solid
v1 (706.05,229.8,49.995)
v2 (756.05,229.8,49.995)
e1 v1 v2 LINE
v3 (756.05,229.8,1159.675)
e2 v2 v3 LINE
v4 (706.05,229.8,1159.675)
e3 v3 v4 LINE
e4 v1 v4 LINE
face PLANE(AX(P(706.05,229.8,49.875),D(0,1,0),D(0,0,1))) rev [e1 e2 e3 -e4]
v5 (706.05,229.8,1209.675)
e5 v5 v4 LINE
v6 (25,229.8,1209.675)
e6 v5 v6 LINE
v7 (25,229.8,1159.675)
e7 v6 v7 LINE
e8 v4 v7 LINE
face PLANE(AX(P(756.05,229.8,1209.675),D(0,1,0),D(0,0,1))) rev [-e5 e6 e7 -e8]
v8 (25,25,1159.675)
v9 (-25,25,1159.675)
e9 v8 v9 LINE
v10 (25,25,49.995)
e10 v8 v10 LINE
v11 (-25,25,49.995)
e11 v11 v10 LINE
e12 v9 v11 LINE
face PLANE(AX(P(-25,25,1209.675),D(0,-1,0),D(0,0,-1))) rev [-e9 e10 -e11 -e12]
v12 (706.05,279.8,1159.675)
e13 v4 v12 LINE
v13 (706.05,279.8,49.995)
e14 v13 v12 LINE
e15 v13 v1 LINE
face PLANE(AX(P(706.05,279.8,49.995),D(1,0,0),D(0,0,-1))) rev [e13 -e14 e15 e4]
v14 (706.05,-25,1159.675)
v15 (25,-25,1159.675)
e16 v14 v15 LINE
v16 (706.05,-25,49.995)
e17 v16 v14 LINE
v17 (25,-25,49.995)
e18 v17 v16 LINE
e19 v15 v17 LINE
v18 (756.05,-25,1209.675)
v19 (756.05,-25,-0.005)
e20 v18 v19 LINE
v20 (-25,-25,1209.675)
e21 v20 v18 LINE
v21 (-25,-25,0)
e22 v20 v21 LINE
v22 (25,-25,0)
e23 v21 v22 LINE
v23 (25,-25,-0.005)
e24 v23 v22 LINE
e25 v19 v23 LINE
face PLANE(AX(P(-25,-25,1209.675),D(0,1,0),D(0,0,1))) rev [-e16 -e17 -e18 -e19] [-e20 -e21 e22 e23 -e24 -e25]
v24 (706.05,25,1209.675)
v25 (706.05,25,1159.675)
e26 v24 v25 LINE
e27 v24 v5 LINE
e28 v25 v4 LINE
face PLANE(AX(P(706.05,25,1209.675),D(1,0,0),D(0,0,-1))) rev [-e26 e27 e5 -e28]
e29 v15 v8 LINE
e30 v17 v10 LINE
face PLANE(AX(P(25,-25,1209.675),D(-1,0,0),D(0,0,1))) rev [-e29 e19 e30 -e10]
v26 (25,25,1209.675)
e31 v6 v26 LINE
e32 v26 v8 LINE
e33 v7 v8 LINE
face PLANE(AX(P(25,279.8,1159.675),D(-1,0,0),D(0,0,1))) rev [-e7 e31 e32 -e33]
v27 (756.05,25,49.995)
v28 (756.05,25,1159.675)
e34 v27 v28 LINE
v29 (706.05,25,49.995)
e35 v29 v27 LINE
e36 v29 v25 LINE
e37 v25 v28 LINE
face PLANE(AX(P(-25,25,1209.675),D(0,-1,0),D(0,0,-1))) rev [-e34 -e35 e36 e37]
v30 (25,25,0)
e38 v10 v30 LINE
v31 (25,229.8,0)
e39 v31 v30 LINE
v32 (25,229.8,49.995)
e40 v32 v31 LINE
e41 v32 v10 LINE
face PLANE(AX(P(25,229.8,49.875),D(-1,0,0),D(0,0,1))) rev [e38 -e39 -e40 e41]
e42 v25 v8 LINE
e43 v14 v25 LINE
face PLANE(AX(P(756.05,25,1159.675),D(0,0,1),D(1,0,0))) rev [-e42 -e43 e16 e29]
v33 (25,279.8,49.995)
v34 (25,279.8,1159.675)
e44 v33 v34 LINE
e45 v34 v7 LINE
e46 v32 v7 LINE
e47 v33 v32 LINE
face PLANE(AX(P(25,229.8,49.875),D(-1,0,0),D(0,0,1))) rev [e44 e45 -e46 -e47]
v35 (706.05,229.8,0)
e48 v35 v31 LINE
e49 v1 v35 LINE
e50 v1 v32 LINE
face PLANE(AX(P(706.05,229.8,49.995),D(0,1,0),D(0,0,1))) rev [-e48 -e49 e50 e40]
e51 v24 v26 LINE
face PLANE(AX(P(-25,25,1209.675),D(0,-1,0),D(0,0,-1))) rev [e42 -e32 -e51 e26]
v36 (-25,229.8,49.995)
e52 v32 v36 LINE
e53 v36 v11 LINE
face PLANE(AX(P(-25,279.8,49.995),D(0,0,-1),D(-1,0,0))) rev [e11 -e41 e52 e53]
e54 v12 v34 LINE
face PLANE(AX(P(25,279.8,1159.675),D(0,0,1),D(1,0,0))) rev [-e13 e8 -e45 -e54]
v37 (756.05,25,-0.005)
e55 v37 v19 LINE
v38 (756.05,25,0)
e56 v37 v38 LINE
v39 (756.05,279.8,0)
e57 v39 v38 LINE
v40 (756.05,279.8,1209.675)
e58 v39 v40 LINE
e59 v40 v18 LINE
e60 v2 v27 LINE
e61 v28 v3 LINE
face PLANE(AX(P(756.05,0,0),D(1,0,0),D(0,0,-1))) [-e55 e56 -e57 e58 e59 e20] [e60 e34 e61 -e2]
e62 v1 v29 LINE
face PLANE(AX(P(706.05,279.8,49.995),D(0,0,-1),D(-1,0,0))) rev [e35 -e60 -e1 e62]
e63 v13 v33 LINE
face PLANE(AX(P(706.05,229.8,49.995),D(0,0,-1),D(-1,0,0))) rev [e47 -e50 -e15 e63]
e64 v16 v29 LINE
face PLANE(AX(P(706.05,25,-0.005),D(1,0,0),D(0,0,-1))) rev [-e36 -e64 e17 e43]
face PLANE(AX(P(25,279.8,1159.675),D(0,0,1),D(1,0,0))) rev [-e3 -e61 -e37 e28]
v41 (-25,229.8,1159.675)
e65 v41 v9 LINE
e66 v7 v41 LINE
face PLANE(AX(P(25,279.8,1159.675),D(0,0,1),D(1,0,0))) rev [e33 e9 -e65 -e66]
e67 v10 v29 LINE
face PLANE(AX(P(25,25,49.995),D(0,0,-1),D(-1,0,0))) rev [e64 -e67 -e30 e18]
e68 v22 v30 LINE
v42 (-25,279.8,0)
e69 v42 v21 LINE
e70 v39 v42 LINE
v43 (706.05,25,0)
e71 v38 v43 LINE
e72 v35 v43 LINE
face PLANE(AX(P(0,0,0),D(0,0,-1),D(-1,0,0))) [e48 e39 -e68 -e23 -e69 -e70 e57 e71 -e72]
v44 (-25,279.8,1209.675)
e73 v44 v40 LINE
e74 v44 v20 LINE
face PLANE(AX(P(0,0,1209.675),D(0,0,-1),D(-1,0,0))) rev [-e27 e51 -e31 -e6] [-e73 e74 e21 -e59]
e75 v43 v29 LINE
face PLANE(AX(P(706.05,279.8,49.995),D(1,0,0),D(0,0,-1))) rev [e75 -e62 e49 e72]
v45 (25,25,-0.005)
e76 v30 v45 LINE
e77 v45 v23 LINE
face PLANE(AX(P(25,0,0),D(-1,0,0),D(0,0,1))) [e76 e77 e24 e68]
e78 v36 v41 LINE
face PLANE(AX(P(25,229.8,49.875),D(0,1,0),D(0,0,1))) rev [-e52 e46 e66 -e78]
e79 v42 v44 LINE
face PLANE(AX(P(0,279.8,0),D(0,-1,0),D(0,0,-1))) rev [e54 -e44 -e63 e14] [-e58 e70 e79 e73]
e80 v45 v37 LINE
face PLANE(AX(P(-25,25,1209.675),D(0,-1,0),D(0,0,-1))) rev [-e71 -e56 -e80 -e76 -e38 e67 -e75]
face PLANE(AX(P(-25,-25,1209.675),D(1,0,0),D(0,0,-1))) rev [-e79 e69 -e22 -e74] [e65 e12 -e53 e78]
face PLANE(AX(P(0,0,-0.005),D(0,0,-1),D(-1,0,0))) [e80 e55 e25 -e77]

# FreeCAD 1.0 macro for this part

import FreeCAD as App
import Part
import Sketcher
from FreeCAD import Vector
Q = App.Units.Quantity

doc = App.newDocument("Part")
body = doc.addObject("PartDesign::Body", "Body")

# Sketch on XY plane
sketch1 = doc.addObject("Sketcher::SketchObject", "Sketch")
body.addObject(sketch1)
sketch1.AttachmentSupport = (doc.XY_Plane, [""])
sketch1.MapMode = "FlatFace"
sketch1.addGeometry(Part.LineSegment(Vector(-25, 25, 0), Vector(-25, -25, 0)), False)
sketch1.addGeometry(Part.LineSegment(Vector(-25, -25, 0), Vector(25, -25, 0)), False)
sketch1.addGeometry(Part.LineSegment(Vector(25, -25, 0), Vector(25, 25, 0)), False)
sketch1.addGeometry(Part.LineSegment(Vector(25, 25, 0), Vector(-25, 25, 0)), False)
sketch1.addConstraint(Sketcher.Constraint("Coincident", 0, 2, 1, 1))
sketch1.addConstraint(Sketcher.Constraint("Coincident", 1, 2, 2, 1))
sketch1.addConstraint(Sketcher.Constraint("Coincident", 2, 2, 3, 1))
sketch1.addConstraint(Sketcher.Constraint("Coincident", 3, 2, 0, 1))
sketch1.addConstraint(Sketcher.Constraint("Vertical", 0))
sketch1.addConstraint(Sketcher.Constraint("Horizontal", 1))
sketch1.addConstraint(Sketcher.Constraint("Vertical", 2))
sketch1.addConstraint(Sketcher.Constraint("Horizontal", 3))
sketch1.addConstraint(Sketcher.Constraint("Symmetric", 0, 2, 2, 2, -1, 1))
sketch1.addConstraint(Sketcher.Constraint("Equal", 3, 0))
sketch1.addConstraint(Sketcher.Constraint("DistanceX", 1, 1, 1, 2, Q("50 mm")))
pad1 = doc.addObject("PartDesign::Pad", "Pad")
body.addObject(pad1)
pad1.Profile = sketch1
pad1.Length = 1209.675

# Sketch on YZ plane
sketch2 = doc.addObject("Sketcher::SketchObject", "Sketch001")
body.addObject(sketch2)
sketch2.AttachmentSupport = (doc.YZ_Plane, [""])
sketch2.MapMode = "FlatFace"
sketch2.AttachmentOffset = App.Placement(Vector(0, 0, 25), App.Rotation())
sketch2.addGeometry(Part.LineSegment(Vector(25, 1209.675, 0), Vector(-25, 1209.675, 0)), False)
sketch2.addGeometry(Part.LineSegment(Vector(-25, 1209.675, 0), Vector(-25, 1159.675, 0)), False)
sketch2.addGeometry(Part.LineSegment(Vector(-25, 1159.675, 0), Vector(25, 1159.675, 0)), False)
sketch2.addGeometry(Part.LineSegment(Vector(25, 1159.675, 0), Vector(25, 1209.675, 0)), False)
sketch2.addConstraint(Sketcher.Constraint("Coincident", 0, 2, 1, 1))
sketch2.addConstraint(Sketcher.Constraint("Coincident", 1, 2, 2, 1))
sketch2.addConstraint(Sketcher.Constraint("Coincident", 2, 2, 3, 1))
sketch2.addConstraint(Sketcher.Constraint("Coincident", 3, 2, 0, 1))
sketch2.addConstraint(Sketcher.Constraint("Horizontal", 0))
sketch2.addConstraint(Sketcher.Constraint("Vertical", 1))
sketch2.addConstraint(Sketcher.Constraint("Horizontal", 2))
sketch2.addConstraint(Sketcher.Constraint("Vertical", 3))
sketch2.addConstraint(Sketcher.Constraint("Equal", 2, 1))
sketch2.addConstraint(Sketcher.Constraint("DistanceX", 0, 2, 0, 1, Q("50 mm")))
sketch2.addConstraint(Sketcher.Constraint("DistanceX", 0, 2, -1, 1, Q("25 mm")))
sketch2.addConstraint(Sketcher.Constraint("DistanceY", -1, 1, 0, 2, Q("1209.675 mm")))
pad2 = doc.addObject("PartDesign::Pad", "Pad001")
body.addObject(pad2)
pad2.Profile = sketch2
pad2.Length = 731.05

# Sketch on XY plane
sketch3 = doc.addObject("Sketcher::SketchObject", "Sketch002")
body.addObject(sketch3)
sketch3.AttachmentSupport = (doc.XY_Plane, [""])
sketch3.MapMode = "FlatFace"
sketch3.AttachmentOffset = App.Placement(Vector(0, 0, 1159.675), App.Rotation())
sketch3.addGeometry(Part.LineSegment(Vector(756.05, 25, 0), Vector(756.05, -25, 0)), False)
sketch3.addGeometry(Part.LineSegment(Vector(756.05, -25, 0), Vector(706.05, -25, 0)), False)
sketch3.addGeometry(Part.LineSegment(Vector(706.05, -25, 0), Vector(706.05, 25, 0)), False)
sketch3.addGeometry(Part.LineSegment(Vector(706.05, 25, 0), Vector(756.05, 25, 0)), False)
sketch3.addConstraint(Sketcher.Constraint("Coincident", 0, 2, 1, 1))
sketch3.addConstraint(Sketcher.Constraint("Coincident", 1, 2, 2, 1))
sketch3.addConstraint(Sketcher.Constraint("Coincident", 2, 2, 3, 1))
sketch3.addConstraint(Sketcher.Constraint("Coincident", 3, 2, 0, 1))
sketch3.addConstraint(Sketcher.Constraint("Vertical", 0))
sketch3.addConstraint(Sketcher.Constraint("Horizontal", 1))
sketch3.addConstraint(Sketcher.Constraint("Vertical", 2))
sketch3.addConstraint(Sketcher.Constraint("Horizontal", 3))
sketch3.addConstraint(Sketcher.Constraint("Equal", 3, 0))
sketch3.addConstraint(Sketcher.Constraint("DistanceX", 1, 2, 1, 1, Q("50 mm")))
sketch3.addConstraint(Sketcher.Constraint("DistanceY", 0, 2, -1, 1, Q("25 mm")))
sketch3.addConstraint(Sketcher.Constraint("DistanceX", -1, 1, 0, 2, Q("756.05 mm")))
pad3 = doc.addObject("PartDesign::Pad", "Pad002")
body.addObject(pad3)
pad3.Profile = sketch3
pad3.Length = 1159.68
pad3.Reversed = True

# Sketch on YZ plane
sketch4 = doc.addObject("Sketcher::SketchObject", "Sketch003")
body.addObject(sketch4)
sketch4.AttachmentSupport = (doc.YZ_Plane, [""])
sketch4.MapMode = "FlatFace"
sketch4.AttachmentOffset = App.Placement(Vector(0, 0, 706.05), App.Rotation())
sketch4.addGeometry(Part.LineSegment(Vector(25, -0.005, 0), Vector(-25, -0.005, 0)), False)
sketch4.addGeometry(Part.LineSegment(Vector(-25, -0.005, 0), Vector(-25, 49.995, 0)), False)
sketch4.addGeometry(Part.LineSegment(Vector(-25, 49.995, 0), Vector(25, 49.995, 0)), False)
sketch4.addGeometry(Part.LineSegment(Vector(25, 49.995, 0), Vector(25, -0.005, 0)), False)
sketch4.addConstraint(Sketcher.Constraint("Coincident", 0, 2, 1, 1))
sketch4.addConstraint(Sketcher.Constraint("Coincident", 1, 2, 2, 1))
sketch4.addConstraint(Sketcher.Constraint("Coincident", 2, 2, 3, 1))
sketch4.addConstraint(Sketcher.Constraint("Coincident", 3, 2, 0, 1))
sketch4.addConstraint(Sketcher.Constraint("Horizontal", 0))
sketch4.addConstraint(Sketcher.Constraint("Vertical", 1))
sketch4.addConstraint(Sketcher.Constraint("Horizontal", 2))
sketch4.addConstraint(Sketcher.Constraint("Vertical", 3))
sketch4.addConstraint(Sketcher.Constraint("Equal", 2, 1))
sketch4.addConstraint(Sketcher.Constraint("DistanceX", 0, 2, 0, 1, Q("50 mm")))
sketch4.addConstraint(Sketcher.Constraint("DistanceX", 0, 2, -1, 1, Q("25 mm")))
sketch4.addConstraint(Sketcher.Constraint("DistanceY", 0, 2, -1, 1, Q("0.005 mm")))
pad4 = doc.addObject("PartDesign::Pad", "Pad003")
body.addObject(pad4)
pad4.Profile = sketch4
pad4.Length = 681.05
pad4.Reversed = True

# Sketch on XZ plane
sketch5 = doc.addObject("Sketcher::SketchObject", "Sketch004")
body.addObject(sketch5)
sketch5.AttachmentSupport = (doc.XZ_Plane, [""])
sketch5.MapMode = "FlatFace"
sketch5.AttachmentOffset = App.Placement(Vector(0, 0, -25), App.Rotation())
sketch5.addGeometry(Part.LineSegment(Vector(-25, 1159.675, 0), Vector(-25, 1209.675, 0)), False)
sketch5.addGeometry(Part.LineSegment(Vector(-25, 1209.675, 0), Vector(25, 1209.675, 0)), False)
sketch5.addGeometry(Part.LineSegment(Vector(25, 1209.675, 0), Vector(25, 1159.675, 0)), False)
sketch5.addGeometry(Part.LineSegment(Vector(25, 1159.675, 0), Vector(-25, 1159.675, 0)), False)
sketch5.addConstraint(Sketcher.Constraint("Coincident", 0, 2, 1, 1))
sketch5.addConstraint(Sketcher.Constraint("Coincident", 1, 2, 2, 1))
sketch5.addConstraint(Sketcher.Constraint("Coincident", 2, 2, 3, 1))
sketch5.addConstraint(Sketcher.Constraint("Coincident", 3, 2, 0, 1))
sketch5.addConstraint(Sketcher.Constraint("Vertical", 0))
sketch5.addConstraint(Sketcher.Constraint("Horizontal", 1))
sketch5.addConstraint(Sketcher.Constraint("Vertical", 2))
sketch5.addConstraint(Sketcher.Constraint("Horizontal", 3))
sketch5.addConstraint(Sketcher.Constraint("Equal", 3, 0))
sketch5.addConstraint(Sketcher.Constraint("DistanceX", 1, 1, 1, 2, Q("50 mm")))
sketch5.addConstraint(Sketcher.Constraint("DistanceX", 0, 2, -1, 1, Q("25 mm")))
sketch5.addConstraint(Sketcher.Constraint("DistanceY", -1, 1, 0, 2, Q("1209.675 mm")))
pad5 = doc.addObject("PartDesign::Pad", "Pad004")
body.addObject(pad5)
pad5.Profile = sketch5
pad5.Length = 254.8
pad5.Reversed = True

# Sketch on YZ plane
sketch6 = doc.addObject("Sketcher::SketchObject", "Sketch005")
body.addObject(sketch6)
sketch6.AttachmentSupport = (doc.YZ_Plane, [""])
sketch6.MapMode = "FlatFace"
sketch6.AttachmentOffset = App.Placement(Vector(0, 0, 25), App.Rotation())
sketch6.addGeometry(Part.LineSegment(Vector(279.8, 1209.675, 0), Vector(229.8, 1209.675, 0)), False)
sketch6.addGeometry(Part.LineSegment(Vector(229.8, 1209.675, 0), Vector(229.8, 1159.675, 0)), False)
sketch6.addGeometry(Part.LineSegment(Vector(229.8, 1159.675, 0), Vector(279.8, 1159.675, 0)), False)
sketch6.addGeometry(Part.LineSegment(Vector(279.8, 1159.675, 0), Vector(279.8, 1209.675, 0)), False)
sketch6.addConstraint(Sketcher.Constraint("Coincident", 0, 2, 1, 1))
sketch6.addConstraint(Sketcher.Constraint("Coincident", 1, 2, 2, 1))
sketch6.addConstraint(Sketcher.Constraint("Coincident", 2, 2, 3, 1))
sketch6.addConstraint(Sketcher.Constraint("Coincident", 3, 2, 0, 1))
sketch6.addConstraint(Sketcher.Constraint("Horizontal", 0))
sketch6.addConstraint(Sketcher.Constraint("Vertical", 1))
sketch6.addConstraint(Sketcher.Constraint("Horizontal", 2))
sketch6.addConstraint(Sketcher.Constraint("Vertical", 3))
sketch6.addConstraint(Sketcher.Constraint("Equal", 2, 1))
sketch6.addConstraint(Sketcher.Constraint("DistanceX", 0, 2, 0, 1, Q("50 mm")))
sketch6.addConstraint(Sketcher.Constraint("DistanceX", -1, 1, 0, 2, Q("229.8 mm")))
sketch6.addConstraint(Sketcher.Constraint("DistanceY", -1, 1, 0, 2, Q("1209.675 mm")))
pad6 = doc.addObject("PartDesign::Pad", "Pad005")
body.addObject(pad6)
pad6.Profile = sketch6
pad6.Length = 731.05

# Sketch on XZ plane
sketch7 = doc.addObject("Sketcher::SketchObject", "Sketch006")
body.addObject(sketch7)
sketch7.AttachmentSupport = (doc.XZ_Plane, [""])
sketch7.MapMode = "FlatFace"
sketch7.AttachmentOffset = App.Placement(Vector(0, 0, -229.8), App.Rotation())
sketch7.addGeometry(Part.LineSegment(Vector(706.05, 1209.675, 0), Vector(706.05, 1159.675, 0)), False)
sketch7.addGeometry(Part.LineSegment(Vector(706.05, 1159.675, 0), Vector(756.05, 1159.675, 0)), False)
sketch7.addGeometry(Part.LineSegment(Vector(756.05, 1159.675, 0), Vector(756.05, 1209.675, 0)), False)
sketch7.addGeometry(Part.LineSegment(Vector(756.05, 1209.675, 0), Vector(706.05, 1209.675, 0)), False)
sketch7.addConstraint(Sketcher.Constraint("Coincident", 0, 2, 1, 1))
sketch7.addConstraint(Sketcher.Constraint("Coincident", 1, 2, 2, 1))
sketch7.addConstraint(Sketcher.Constraint("Coincident", 2, 2, 3, 1))
sketch7.addConstraint(Sketcher.Constraint("Coincident", 3, 2, 0, 1))
sketch7.addConstraint(Sketcher.Constraint("Vertical", 0))
sketch7.addConstraint(Sketcher.Constraint("Horizontal", 1))
sketch7.addConstraint(Sketcher.Constraint("Vertical", 2))
sketch7.addConstraint(Sketcher.Constraint("Horizontal", 3))
sketch7.addConstraint(Sketcher.Constraint("Equal", 3, 0))
sketch7.addConstraint(Sketcher.Constraint("DistanceX", 1, 1, 1, 2, Q("50 mm")))
sketch7.addConstraint(Sketcher.Constraint("DistanceX", -1, 1, 0, 2, Q("706.05 mm")))
sketch7.addConstraint(Sketcher.Constraint("DistanceY", -1, 1, 0, 2, Q("1159.675 mm")))
pad7 = doc.addObject("PartDesign::Pad", "Pad006")
body.addObject(pad7)
pad7.Profile = sketch7
pad7.Length = 204.8

# Sketch on XZ plane
sketch8 = doc.addObject("Sketcher::SketchObject", "Sketch007")
body.addObject(sketch8)
sketch8.AttachmentSupport = (doc.XZ_Plane, [""])
sketch8.MapMode = "FlatFace"
sketch8.AttachmentOffset = App.Placement(Vector(0, 0, -25), App.Rotation())
sketch8.addGeometry(Part.LineSegment(Vector(706.05, 0, 0), Vector(706.05, 49.995, 0)), False)
sketch8.addGeometry(Part.LineSegment(Vector(706.05, 49.995, 0), Vector(756.05, 49.995, 0)), False)
sketch8.addGeometry(Part.LineSegment(Vector(756.05, 49.995, 0), Vector(756.05, 0, 0)), False)
sketch8.addGeometry(Part.LineSegment(Vector(756.05, 0, 0), Vector(706.05, 0, 0)), False)
sketch8.addConstraint(Sketcher.Constraint("Coincident", 0, 2, 1, 1))
sketch8.addConstraint(Sketcher.Constraint("Coincident", 1, 2, 2, 1))
sketch8.addConstraint(Sketcher.Constraint("Coincident", 2, 2, 3, 1))
sketch8.addConstraint(Sketcher.Constraint("Coincident", 3, 2, 0, 1))
sketch8.addConstraint(Sketcher.Constraint("Vertical", 0))
sketch8.addConstraint(Sketcher.Constraint("Horizontal", 1))
sketch8.addConstraint(Sketcher.Constraint("Vertical", 2))
sketch8.addConstraint(Sketcher.Constraint("Horizontal", 3))
sketch8.addConstraint(Sketcher.Constraint("PointOnObject", 2, 2, -1))
sketch8.addConstraint(Sketcher.Constraint("DistanceX", 1, 1, 1, 2, Q("50 mm")))
sketch8.addConstraint(Sketcher.Constraint("DistanceY", 0, 1, 0, 2, Q("49.995 mm")))
sketch8.addConstraint(Sketcher.Constraint("DistanceX", -1, 1, 0, 2, Q("706.05 mm")))
pad8 = doc.addObject("PartDesign::Pad", "Pad007")
body.addObject(pad8)
pad8.Profile = sketch8
pad8.Length = 254.8
pad8.Reversed = True

# Sketch on XY plane
sketch9 = doc.addObject("Sketcher::SketchObject", "Sketch008")
body.addObject(sketch9)
sketch9.AttachmentSupport = (doc.XY_Plane, [""])
sketch9.MapMode = "FlatFace"
sketch9.AttachmentOffset = App.Placement(Vector(0, 0, 1159.675), App.Rotation())
sketch9.addGeometry(Part.LineSegment(Vector(756.05, 279.8, 0), Vector(756.05, 229.8, 0)), False)
sketch9.addGeometry(Part.LineSegment(Vector(756.05, 229.8, 0), Vector(706.05, 229.8, 0)), False)
sketch9.addGeometry(Part.LineSegment(Vector(706.05, 229.8, 0), Vector(706.05, 279.8, 0)), False)
sketch9.addGeometry(Part.LineSegment(Vector(706.05, 279.8, 0), Vector(756.05, 279.8, 0)), False)
sketch9.addConstraint(Sketcher.Constraint("Coincident", 0, 2, 1, 1))
sketch9.addConstraint(Sketcher.Constraint("Coincident", 1, 2, 2, 1))
sketch9.addConstraint(Sketcher.Constraint("Coincident", 2, 2, 3, 1))
sketch9.addConstraint(Sketcher.Constraint("Coincident", 3, 2, 0, 1))
sketch9.addConstraint(Sketcher.Constraint("Vertical", 0))
sketch9.addConstraint(Sketcher.Constraint("Horizontal", 1))
sketch9.addConstraint(Sketcher.Constraint("Vertical", 2))
sketch9.addConstraint(Sketcher.Constraint("Horizontal", 3))
sketch9.addConstraint(Sketcher.Constraint("Equal", 3, 0))
sketch9.addConstraint(Sketcher.Constraint("DistanceX", 1, 2, 1, 1, Q("50 mm")))
sketch9.addConstraint(Sketcher.Constraint("DistanceY", -1, 1, 0, 2, Q("229.8 mm")))
sketch9.addConstraint(Sketcher.Constraint("DistanceX", -1, 1, 0, 2, Q("756.05 mm")))
pad9 = doc.addObject("PartDesign::Pad", "Pad008")
body.addObject(pad9)
pad9.Profile = sketch9
pad9.Length = 1109.8
pad9.Reversed = True

# Sketch on XY plane
sketch10 = doc.addObject("Sketcher::SketchObject", "Sketch009")
body.addObject(sketch10)
sketch10.AttachmentSupport = (doc.XY_Plane, [""])
sketch10.MapMode = "FlatFace"
sketch10.AttachmentOffset = App.Placement(Vector(0, 0, 1159.675), App.Rotation())
sketch10.addGeometry(Part.LineSegment(Vector(25, 279.8, 0), Vector(25, 229.8, 0)), False)
sketch10.addGeometry(Part.LineSegment(Vector(25, 229.8, 0), Vector(-25, 229.8, 0)), False)
sketch10.addGeometry(Part.LineSegment(Vector(-25, 229.8, 0), Vector(-25, 279.8, 0)), False)
sketch10.addGeometry(Part.LineSegment(Vector(-25, 279.8, 0), Vector(25, 279.8, 0)), False)
sketch10.addConstraint(Sketcher.Constraint("Coincident", 0, 2, 1, 1))
sketch10.addConstraint(Sketcher.Constraint("Coincident", 1, 2, 2, 1))
sketch10.addConstraint(Sketcher.Constraint("Coincident", 2, 2, 3, 1))
sketch10.addConstraint(Sketcher.Constraint("Coincident", 3, 2, 0, 1))
sketch10.addConstraint(Sketcher.Constraint("Vertical", 0))
sketch10.addConstraint(Sketcher.Constraint("Horizontal", 1))
sketch10.addConstraint(Sketcher.Constraint("Vertical", 2))
sketch10.addConstraint(Sketcher.Constraint("Horizontal", 3))
sketch10.addConstraint(Sketcher.Constraint("Equal", 3, 0))
sketch10.addConstraint(Sketcher.Constraint("DistanceX", 1, 2, 1, 1, Q("50 mm")))
sketch10.addConstraint(Sketcher.Constraint("DistanceX", -1, 1, 0, 2, Q("25 mm")))
sketch10.addConstraint(Sketcher.Constraint("DistanceY", -1, 1, 0, 2, Q("229.8 mm")))
pad10 = doc.addObject("PartDesign::Pad", "Pad009")
body.addObject(pad10)
pad10.Profile = sketch10
pad10.Length = 1109.8
pad10.Reversed = True

# Sketch on XZ plane
sketch11 = doc.addObject("Sketcher::SketchObject", "Sketch010")
body.addObject(sketch11)
sketch11.AttachmentSupport = (doc.XZ_Plane, [""])
sketch11.MapMode = "FlatFace"
sketch11.AttachmentOffset = App.Placement(Vector(0, 0, -25), App.Rotation())
sketch11.addGeometry(Part.LineSegment(Vector(-25, 0, 0), Vector(-25, 49.995, 0)), False)
sketch11.addGeometry(Part.LineSegment(Vector(-25, 49.995, 0), Vector(25, 49.995, 0)), False)
sketch11.addGeometry(Part.LineSegment(Vector(25, 49.995, 0), Vector(25, 0, 0)), False)
sketch11.addGeometry(Part.LineSegment(Vector(25, 0, 0), Vector(-25, 0, 0)), False)
sketch11.addConstraint(Sketcher.Constraint("Coincident", 0, 2, 1, 1))
sketch11.addConstraint(Sketcher.Constraint("Coincident", 1, 2, 2, 1))
sketch11.addConstraint(Sketcher.Constraint("Coincident", 2, 2, 3, 1))
sketch11.addConstraint(Sketcher.Constraint("Coincident", 3, 2, 0, 1))
sketch11.addConstraint(Sketcher.Constraint("Vertical", 0))
sketch11.addConstraint(Sketcher.Constraint("Horizontal", 1))
sketch11.addConstraint(Sketcher.Constraint("Vertical", 2))
sketch11.addConstraint(Sketcher.Constraint("Horizontal", 3))
sketch11.addConstraint(Sketcher.Constraint("Symmetric", 2, 2, 3, 2, -1, 1))
sketch11.addConstraint(Sketcher.Constraint("DistanceX", 1, 1, 1, 2, Q("50 mm")))
sketch11.addConstraint(Sketcher.Constraint("DistanceY", 0, 1, 0, 2, Q("49.995 mm")))
pad11 = doc.addObject("PartDesign::Pad", "Pad010")
body.addObject(pad11)
pad11.Profile = sketch11
pad11.Length = 254.8
pad11.Reversed = True

# Sketch on YZ plane
sketch12 = doc.addObject("Sketcher::SketchObject", "Sketch011")
body.addObject(sketch12)
sketch12.AttachmentSupport = (doc.YZ_Plane, [""])
sketch12.MapMode = "FlatFace"
sketch12.AttachmentOffset = App.Placement(Vector(0, 0, 25), App.Rotation())
sketch12.addGeometry(Part.LineSegment(Vector(279.8, 49.995, 0), Vector(229.8, 49.995, 0)), False)
sketch12.addGeometry(Part.LineSegment(Vector(229.8, 49.995, 0), Vector(229.8, 0, 0)), False)
sketch12.addGeometry(Part.LineSegment(Vector(229.8, 0, 0), Vector(279.8, 0, 0)), False)
sketch12.addGeometry(Part.LineSegment(Vector(279.8, 0, 0), Vector(279.8, 49.995, 0)), False)
sketch12.addConstraint(Sketcher.Constraint("Coincident", 0, 2, 1, 1))
sketch12.addConstraint(Sketcher.Constraint("Coincident", 1, 2, 2, 1))
sketch12.addConstraint(Sketcher.Constraint("Coincident", 2, 2, 3, 1))
sketch12.addConstraint(Sketcher.Constraint("Coincident", 3, 2, 0, 1))
sketch12.addConstraint(Sketcher.Constraint("Horizontal", 0))
sketch12.addConstraint(Sketcher.Constraint("Vertical", 1))
sketch12.addConstraint(Sketcher.Constraint("Horizontal", 2))
sketch12.addConstraint(Sketcher.Constraint("Vertical", 3))
sketch12.addConstraint(Sketcher.Constraint("PointOnObject", 1, 2, -1))
sketch12.addConstraint(Sketcher.Constraint("DistanceX", 0, 2, 0, 1, Q("50 mm")))
sketch12.addConstraint(Sketcher.Constraint("DistanceX", -1, 1, 0, 2, Q("229.8 mm")))
sketch12.addConstraint(Sketcher.Constraint("DistanceY", 1, 2, 1, 1, Q("49.995 mm")))
pad12 = doc.addObject("PartDesign::Pad", "Pad011")
body.addObject(pad12)
pad12.Profile = sketch12
pad12.Length = 681.05

doc.recompute()
